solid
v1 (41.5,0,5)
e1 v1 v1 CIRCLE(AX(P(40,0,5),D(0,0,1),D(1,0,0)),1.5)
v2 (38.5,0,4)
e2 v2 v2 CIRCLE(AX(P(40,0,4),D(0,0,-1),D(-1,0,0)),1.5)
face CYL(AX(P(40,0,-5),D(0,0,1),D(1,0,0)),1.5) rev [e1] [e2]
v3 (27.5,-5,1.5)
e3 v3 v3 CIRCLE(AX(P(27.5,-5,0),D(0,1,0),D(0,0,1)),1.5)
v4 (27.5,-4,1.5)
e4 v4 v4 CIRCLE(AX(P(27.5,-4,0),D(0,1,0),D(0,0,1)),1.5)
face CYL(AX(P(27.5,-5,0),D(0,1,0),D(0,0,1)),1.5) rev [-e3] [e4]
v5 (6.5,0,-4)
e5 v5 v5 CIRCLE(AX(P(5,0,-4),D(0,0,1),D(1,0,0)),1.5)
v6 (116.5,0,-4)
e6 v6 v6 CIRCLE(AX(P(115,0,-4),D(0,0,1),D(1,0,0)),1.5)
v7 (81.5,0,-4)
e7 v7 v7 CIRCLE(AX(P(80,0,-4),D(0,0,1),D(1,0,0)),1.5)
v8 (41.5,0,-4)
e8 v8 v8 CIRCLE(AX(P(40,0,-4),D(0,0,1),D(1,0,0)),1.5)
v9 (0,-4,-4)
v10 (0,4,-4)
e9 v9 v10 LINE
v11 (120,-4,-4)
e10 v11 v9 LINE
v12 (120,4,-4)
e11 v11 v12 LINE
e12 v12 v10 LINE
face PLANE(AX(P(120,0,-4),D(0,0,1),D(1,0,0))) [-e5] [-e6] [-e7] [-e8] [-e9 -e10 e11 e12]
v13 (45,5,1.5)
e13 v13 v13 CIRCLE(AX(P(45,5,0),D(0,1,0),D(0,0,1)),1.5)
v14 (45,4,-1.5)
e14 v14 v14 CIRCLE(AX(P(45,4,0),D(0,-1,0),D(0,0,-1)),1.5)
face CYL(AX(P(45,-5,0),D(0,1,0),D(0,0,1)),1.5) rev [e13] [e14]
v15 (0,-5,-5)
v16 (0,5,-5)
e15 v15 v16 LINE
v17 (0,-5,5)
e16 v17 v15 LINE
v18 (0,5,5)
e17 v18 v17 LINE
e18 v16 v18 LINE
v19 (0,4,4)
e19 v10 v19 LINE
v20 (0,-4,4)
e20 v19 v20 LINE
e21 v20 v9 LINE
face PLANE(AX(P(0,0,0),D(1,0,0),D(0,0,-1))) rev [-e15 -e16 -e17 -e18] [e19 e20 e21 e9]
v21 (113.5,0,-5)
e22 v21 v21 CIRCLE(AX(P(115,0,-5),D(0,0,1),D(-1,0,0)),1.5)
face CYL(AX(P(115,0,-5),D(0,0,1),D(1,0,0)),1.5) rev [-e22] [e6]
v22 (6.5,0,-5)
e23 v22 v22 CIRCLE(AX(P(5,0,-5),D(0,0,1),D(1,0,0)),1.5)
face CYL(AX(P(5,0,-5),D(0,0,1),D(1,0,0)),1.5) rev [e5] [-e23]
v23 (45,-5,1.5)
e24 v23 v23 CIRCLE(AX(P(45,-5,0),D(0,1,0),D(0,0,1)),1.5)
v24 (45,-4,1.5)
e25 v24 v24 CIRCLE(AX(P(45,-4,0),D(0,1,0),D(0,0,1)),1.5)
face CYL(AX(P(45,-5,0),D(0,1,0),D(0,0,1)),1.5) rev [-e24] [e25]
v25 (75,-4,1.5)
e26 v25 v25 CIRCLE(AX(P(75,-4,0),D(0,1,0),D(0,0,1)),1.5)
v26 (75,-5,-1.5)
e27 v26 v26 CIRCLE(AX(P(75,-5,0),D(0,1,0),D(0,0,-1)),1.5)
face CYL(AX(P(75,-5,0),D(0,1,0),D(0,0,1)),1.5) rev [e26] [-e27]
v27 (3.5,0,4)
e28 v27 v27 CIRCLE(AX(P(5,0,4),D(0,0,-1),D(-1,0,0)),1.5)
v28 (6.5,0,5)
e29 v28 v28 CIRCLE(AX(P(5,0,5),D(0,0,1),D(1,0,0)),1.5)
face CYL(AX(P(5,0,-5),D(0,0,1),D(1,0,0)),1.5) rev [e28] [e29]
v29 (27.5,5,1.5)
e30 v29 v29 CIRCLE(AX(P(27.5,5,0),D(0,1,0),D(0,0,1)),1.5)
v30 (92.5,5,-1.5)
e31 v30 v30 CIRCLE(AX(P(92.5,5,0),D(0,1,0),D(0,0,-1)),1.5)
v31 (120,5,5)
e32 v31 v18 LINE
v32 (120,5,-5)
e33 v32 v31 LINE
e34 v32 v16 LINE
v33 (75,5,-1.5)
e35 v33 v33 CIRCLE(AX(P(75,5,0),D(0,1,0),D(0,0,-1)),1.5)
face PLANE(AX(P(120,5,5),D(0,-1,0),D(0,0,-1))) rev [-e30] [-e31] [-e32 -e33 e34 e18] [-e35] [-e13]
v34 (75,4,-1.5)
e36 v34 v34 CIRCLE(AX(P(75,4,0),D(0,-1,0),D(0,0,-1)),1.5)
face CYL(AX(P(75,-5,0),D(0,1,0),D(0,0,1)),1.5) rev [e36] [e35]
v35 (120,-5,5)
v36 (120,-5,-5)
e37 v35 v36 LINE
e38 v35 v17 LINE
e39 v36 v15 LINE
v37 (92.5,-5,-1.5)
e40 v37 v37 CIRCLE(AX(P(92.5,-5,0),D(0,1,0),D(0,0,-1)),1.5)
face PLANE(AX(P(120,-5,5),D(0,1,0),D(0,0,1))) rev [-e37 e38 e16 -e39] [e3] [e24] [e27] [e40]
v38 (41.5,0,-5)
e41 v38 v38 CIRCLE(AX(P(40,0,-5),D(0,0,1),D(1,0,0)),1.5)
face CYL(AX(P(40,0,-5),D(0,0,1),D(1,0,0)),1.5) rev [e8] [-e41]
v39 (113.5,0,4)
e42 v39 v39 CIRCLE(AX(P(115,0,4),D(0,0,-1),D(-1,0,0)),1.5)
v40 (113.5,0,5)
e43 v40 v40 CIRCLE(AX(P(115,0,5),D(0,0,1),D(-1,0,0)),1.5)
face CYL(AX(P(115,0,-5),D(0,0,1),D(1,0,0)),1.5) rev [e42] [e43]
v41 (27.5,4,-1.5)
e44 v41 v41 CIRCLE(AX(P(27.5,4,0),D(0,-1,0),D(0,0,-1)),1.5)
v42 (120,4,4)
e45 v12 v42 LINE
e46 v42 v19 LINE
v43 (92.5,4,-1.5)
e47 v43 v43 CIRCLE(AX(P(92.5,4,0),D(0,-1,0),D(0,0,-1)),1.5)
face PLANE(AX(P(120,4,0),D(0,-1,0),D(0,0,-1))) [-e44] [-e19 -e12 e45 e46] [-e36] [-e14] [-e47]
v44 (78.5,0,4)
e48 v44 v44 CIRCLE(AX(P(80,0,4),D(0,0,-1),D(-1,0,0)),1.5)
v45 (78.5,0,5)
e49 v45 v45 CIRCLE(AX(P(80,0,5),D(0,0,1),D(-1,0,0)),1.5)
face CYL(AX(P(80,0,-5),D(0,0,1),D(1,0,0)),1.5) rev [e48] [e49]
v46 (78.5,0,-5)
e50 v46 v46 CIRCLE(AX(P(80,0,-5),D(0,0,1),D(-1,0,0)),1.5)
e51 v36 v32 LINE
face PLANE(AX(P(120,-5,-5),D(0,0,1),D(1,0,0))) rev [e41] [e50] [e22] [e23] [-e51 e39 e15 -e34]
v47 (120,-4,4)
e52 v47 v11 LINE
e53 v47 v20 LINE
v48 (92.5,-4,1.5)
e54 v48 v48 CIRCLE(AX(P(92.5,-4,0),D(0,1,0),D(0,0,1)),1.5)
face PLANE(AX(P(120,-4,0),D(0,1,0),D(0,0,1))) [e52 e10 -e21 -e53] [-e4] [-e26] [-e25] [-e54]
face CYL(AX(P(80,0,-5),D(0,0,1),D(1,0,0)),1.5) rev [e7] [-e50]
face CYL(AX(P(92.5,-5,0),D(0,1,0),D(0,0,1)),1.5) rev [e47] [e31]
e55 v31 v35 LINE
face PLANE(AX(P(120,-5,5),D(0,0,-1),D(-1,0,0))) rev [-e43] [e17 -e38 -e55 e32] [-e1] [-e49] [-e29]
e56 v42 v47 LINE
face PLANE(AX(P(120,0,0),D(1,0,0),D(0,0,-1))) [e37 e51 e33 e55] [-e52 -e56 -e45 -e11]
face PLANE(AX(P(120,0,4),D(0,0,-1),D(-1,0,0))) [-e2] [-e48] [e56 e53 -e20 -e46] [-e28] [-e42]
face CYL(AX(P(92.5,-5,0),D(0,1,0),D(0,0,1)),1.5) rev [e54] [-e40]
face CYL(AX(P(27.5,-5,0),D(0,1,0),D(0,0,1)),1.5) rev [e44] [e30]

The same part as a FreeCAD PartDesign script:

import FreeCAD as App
import Part
import Sketcher
Q = App.Units.Quantity


def add_polygon(sketch, points):
    """Adds a closed chain of lines whose ends are joined by coincident constraints."""
    first, n = sketch.GeometryCount, len(points)
    for a, b in zip(points, points[1:] + points[:1]):
        sketch.addGeometry(Part.LineSegment(App.Vector(*a, 0), App.Vector(*b, 0)), False)
    for i in range(n):
        sketch.addConstraint(Sketcher.Constraint("Coincident", first + i, 2, first + (i + 1) % n, 1))

doc = App.newDocument("Part")
body = doc.addObject("PartDesign::Body", "Body")

# Sketch on YZ plane
sketch1 = body.newObject("Sketcher::SketchObject", "Sketch")
sketch1.AttachmentSupport = (doc.getObject("YZ_Plane"), [""])
sketch1.MapMode = "FlatFace"
add_polygon(sketch1, [(5, 5), (-5, 5), (-5, -5), (5, -5)])  # lines 0-3
add_polygon(sketch1, [(-4, -4), (-4, 4), (4, 4), (4, -4)])  # lines 4-7
sketch1.addConstraint([
    Sketcher.Constraint("Horizontal", 0),
    Sketcher.Constraint("Vertical", 1),
    Sketcher.Constraint("Horizontal", 2),
    Sketcher.Constraint("Vertical", 3),
    Sketcher.Constraint("Vertical", 4),
    Sketcher.Constraint("Horizontal", 5),
    Sketcher.Constraint("Vertical", 6),
    Sketcher.Constraint("Horizontal", 7),
    Sketcher.Constraint("Symmetric", 0, 2, 2, 2, -1, 1),
    Sketcher.Constraint("Symmetric", 4, 2, 6, 2, -1, 1),
    Sketcher.Constraint("Equal", 2, 1),
    Sketcher.Constraint("Equal", 7, 4),
    Sketcher.Constraint("DistanceX", 0, 2, 0, 1, Q("10 mm")),
    Sketcher.Constraint("DistanceX", 5, 1, 5, 2, Q("8 mm")),
])
pad1 = body.newObject("PartDesign::Pad", "Pad")
pad1.Profile = sketch1
pad1.Length = 120

# Sketch on XY plane
sketch2 = body.newObject("Sketcher::SketchObject", "Sketch001")
sketch2.AttachmentSupport = (doc.getObject("XY_Plane"), [""])
sketch2.MapMode = "FlatFace"
sketch2.AttachmentOffset = App.Placement(App.Vector(0, 0, 5), App.Rotation())
sketch2.addGeometry([
    Part.Circle(App.Vector(5, 0, 0), App.Vector(0, 0, 1), 1.5),
    Part.Circle(App.Vector(115, 0, 0), App.Vector(0, 0, 1), 1.5),
    Part.Circle(App.Vector(40, 0, 0), App.Vector(0, 0, 1), 1.5),
    Part.Circle(App.Vector(80, 0, 0), App.Vector(0, 0, 1), 1.5),
], False)
sketch2.addConstraint([
    Sketcher.Constraint("Equal", 0, 1),
    Sketcher.Constraint("Equal", 1, 2),
    Sketcher.Constraint("Equal", 2, 3),
    Sketcher.Constraint("PointOnObject", 0, 3, -1),
    Sketcher.Constraint("PointOnObject", 1, 3, -1),
    Sketcher.Constraint("PointOnObject", 2, 3, -1),
    Sketcher.Constraint("PointOnObject", 3, 3, -1),
    Sketcher.Constraint("Diameter", 0, Q("3 mm")),
    Sketcher.Constraint("DistanceX", -1, 1, 0, 3, Q("5 mm")),
    Sketcher.Constraint("DistanceX", -1, 1, 1, 3, Q("115 mm")),
    Sketcher.Constraint("DistanceX", -1, 1, 2, 3, Q("40 mm")),
    Sketcher.Constraint("DistanceX", -1, 1, 3, 3, Q("80 mm")),
])
pocket1 = body.newObject("PartDesign::Pocket", "Pocket")
pocket1.Profile = sketch2
pocket1.Type = "ThroughAll"

# Sketch on XZ plane
sketch3 = body.newObject("Sketcher::SketchObject", "Sketch002")
sketch3.AttachmentSupport = (doc.getObject("XZ_Plane"), [""])
sketch3.MapMode = "FlatFace"
sketch3.AttachmentOffset = App.Placement(App.Vector(0, 0, -5), App.Rotation())
sketch3.addGeometry([
    Part.Circle(App.Vector(45, 0, 0), App.Vector(0, 0, 1), 1.5),
    Part.Circle(App.Vector(75, 0, 0), App.Vector(0, 0, 1), 1.5),
    Part.Circle(App.Vector(27.5, 0, 0), App.Vector(0, 0, 1), 1.5),
    Part.Circle(App.Vector(92.5, 0, 0), App.Vector(0, 0, 1), 1.5),
], False)
sketch3.addConstraint([
    Sketcher.Constraint("Equal", 0, 1),
    Sketcher.Constraint("Equal", 1, 2),
    Sketcher.Constraint("Equal", 2, 3),
    Sketcher.Constraint("PointOnObject", 0, 3, -1),
    Sketcher.Constraint("PointOnObject", 1, 3, -1),
    Sketcher.Constraint("PointOnObject", 2, 3, -1),
    Sketcher.Constraint("PointOnObject", 3, 3, -1),
    Sketcher.Constraint("Diameter", 0, Q("3 mm")),
    Sketcher.Constraint("DistanceX", -1, 1, 0, 3, Q("45 mm")),
    Sketcher.Constraint("DistanceX", -1, 1, 1, 3, Q("75 mm")),
    Sketcher.Constraint("DistanceX", 2, 3, 3, 3, Q("65 mm")),
    Sketcher.Constraint("DistanceX", -1, 1, 2, 3, Q("27.5 mm")),
])
pocket2 = body.newObject("PartDesign::Pocket", "Pocket001")
pocket2.Profile = sketch3
pocket2.Type = "ThroughAll"
pocket2.Reversed = True

doc.recompute()
